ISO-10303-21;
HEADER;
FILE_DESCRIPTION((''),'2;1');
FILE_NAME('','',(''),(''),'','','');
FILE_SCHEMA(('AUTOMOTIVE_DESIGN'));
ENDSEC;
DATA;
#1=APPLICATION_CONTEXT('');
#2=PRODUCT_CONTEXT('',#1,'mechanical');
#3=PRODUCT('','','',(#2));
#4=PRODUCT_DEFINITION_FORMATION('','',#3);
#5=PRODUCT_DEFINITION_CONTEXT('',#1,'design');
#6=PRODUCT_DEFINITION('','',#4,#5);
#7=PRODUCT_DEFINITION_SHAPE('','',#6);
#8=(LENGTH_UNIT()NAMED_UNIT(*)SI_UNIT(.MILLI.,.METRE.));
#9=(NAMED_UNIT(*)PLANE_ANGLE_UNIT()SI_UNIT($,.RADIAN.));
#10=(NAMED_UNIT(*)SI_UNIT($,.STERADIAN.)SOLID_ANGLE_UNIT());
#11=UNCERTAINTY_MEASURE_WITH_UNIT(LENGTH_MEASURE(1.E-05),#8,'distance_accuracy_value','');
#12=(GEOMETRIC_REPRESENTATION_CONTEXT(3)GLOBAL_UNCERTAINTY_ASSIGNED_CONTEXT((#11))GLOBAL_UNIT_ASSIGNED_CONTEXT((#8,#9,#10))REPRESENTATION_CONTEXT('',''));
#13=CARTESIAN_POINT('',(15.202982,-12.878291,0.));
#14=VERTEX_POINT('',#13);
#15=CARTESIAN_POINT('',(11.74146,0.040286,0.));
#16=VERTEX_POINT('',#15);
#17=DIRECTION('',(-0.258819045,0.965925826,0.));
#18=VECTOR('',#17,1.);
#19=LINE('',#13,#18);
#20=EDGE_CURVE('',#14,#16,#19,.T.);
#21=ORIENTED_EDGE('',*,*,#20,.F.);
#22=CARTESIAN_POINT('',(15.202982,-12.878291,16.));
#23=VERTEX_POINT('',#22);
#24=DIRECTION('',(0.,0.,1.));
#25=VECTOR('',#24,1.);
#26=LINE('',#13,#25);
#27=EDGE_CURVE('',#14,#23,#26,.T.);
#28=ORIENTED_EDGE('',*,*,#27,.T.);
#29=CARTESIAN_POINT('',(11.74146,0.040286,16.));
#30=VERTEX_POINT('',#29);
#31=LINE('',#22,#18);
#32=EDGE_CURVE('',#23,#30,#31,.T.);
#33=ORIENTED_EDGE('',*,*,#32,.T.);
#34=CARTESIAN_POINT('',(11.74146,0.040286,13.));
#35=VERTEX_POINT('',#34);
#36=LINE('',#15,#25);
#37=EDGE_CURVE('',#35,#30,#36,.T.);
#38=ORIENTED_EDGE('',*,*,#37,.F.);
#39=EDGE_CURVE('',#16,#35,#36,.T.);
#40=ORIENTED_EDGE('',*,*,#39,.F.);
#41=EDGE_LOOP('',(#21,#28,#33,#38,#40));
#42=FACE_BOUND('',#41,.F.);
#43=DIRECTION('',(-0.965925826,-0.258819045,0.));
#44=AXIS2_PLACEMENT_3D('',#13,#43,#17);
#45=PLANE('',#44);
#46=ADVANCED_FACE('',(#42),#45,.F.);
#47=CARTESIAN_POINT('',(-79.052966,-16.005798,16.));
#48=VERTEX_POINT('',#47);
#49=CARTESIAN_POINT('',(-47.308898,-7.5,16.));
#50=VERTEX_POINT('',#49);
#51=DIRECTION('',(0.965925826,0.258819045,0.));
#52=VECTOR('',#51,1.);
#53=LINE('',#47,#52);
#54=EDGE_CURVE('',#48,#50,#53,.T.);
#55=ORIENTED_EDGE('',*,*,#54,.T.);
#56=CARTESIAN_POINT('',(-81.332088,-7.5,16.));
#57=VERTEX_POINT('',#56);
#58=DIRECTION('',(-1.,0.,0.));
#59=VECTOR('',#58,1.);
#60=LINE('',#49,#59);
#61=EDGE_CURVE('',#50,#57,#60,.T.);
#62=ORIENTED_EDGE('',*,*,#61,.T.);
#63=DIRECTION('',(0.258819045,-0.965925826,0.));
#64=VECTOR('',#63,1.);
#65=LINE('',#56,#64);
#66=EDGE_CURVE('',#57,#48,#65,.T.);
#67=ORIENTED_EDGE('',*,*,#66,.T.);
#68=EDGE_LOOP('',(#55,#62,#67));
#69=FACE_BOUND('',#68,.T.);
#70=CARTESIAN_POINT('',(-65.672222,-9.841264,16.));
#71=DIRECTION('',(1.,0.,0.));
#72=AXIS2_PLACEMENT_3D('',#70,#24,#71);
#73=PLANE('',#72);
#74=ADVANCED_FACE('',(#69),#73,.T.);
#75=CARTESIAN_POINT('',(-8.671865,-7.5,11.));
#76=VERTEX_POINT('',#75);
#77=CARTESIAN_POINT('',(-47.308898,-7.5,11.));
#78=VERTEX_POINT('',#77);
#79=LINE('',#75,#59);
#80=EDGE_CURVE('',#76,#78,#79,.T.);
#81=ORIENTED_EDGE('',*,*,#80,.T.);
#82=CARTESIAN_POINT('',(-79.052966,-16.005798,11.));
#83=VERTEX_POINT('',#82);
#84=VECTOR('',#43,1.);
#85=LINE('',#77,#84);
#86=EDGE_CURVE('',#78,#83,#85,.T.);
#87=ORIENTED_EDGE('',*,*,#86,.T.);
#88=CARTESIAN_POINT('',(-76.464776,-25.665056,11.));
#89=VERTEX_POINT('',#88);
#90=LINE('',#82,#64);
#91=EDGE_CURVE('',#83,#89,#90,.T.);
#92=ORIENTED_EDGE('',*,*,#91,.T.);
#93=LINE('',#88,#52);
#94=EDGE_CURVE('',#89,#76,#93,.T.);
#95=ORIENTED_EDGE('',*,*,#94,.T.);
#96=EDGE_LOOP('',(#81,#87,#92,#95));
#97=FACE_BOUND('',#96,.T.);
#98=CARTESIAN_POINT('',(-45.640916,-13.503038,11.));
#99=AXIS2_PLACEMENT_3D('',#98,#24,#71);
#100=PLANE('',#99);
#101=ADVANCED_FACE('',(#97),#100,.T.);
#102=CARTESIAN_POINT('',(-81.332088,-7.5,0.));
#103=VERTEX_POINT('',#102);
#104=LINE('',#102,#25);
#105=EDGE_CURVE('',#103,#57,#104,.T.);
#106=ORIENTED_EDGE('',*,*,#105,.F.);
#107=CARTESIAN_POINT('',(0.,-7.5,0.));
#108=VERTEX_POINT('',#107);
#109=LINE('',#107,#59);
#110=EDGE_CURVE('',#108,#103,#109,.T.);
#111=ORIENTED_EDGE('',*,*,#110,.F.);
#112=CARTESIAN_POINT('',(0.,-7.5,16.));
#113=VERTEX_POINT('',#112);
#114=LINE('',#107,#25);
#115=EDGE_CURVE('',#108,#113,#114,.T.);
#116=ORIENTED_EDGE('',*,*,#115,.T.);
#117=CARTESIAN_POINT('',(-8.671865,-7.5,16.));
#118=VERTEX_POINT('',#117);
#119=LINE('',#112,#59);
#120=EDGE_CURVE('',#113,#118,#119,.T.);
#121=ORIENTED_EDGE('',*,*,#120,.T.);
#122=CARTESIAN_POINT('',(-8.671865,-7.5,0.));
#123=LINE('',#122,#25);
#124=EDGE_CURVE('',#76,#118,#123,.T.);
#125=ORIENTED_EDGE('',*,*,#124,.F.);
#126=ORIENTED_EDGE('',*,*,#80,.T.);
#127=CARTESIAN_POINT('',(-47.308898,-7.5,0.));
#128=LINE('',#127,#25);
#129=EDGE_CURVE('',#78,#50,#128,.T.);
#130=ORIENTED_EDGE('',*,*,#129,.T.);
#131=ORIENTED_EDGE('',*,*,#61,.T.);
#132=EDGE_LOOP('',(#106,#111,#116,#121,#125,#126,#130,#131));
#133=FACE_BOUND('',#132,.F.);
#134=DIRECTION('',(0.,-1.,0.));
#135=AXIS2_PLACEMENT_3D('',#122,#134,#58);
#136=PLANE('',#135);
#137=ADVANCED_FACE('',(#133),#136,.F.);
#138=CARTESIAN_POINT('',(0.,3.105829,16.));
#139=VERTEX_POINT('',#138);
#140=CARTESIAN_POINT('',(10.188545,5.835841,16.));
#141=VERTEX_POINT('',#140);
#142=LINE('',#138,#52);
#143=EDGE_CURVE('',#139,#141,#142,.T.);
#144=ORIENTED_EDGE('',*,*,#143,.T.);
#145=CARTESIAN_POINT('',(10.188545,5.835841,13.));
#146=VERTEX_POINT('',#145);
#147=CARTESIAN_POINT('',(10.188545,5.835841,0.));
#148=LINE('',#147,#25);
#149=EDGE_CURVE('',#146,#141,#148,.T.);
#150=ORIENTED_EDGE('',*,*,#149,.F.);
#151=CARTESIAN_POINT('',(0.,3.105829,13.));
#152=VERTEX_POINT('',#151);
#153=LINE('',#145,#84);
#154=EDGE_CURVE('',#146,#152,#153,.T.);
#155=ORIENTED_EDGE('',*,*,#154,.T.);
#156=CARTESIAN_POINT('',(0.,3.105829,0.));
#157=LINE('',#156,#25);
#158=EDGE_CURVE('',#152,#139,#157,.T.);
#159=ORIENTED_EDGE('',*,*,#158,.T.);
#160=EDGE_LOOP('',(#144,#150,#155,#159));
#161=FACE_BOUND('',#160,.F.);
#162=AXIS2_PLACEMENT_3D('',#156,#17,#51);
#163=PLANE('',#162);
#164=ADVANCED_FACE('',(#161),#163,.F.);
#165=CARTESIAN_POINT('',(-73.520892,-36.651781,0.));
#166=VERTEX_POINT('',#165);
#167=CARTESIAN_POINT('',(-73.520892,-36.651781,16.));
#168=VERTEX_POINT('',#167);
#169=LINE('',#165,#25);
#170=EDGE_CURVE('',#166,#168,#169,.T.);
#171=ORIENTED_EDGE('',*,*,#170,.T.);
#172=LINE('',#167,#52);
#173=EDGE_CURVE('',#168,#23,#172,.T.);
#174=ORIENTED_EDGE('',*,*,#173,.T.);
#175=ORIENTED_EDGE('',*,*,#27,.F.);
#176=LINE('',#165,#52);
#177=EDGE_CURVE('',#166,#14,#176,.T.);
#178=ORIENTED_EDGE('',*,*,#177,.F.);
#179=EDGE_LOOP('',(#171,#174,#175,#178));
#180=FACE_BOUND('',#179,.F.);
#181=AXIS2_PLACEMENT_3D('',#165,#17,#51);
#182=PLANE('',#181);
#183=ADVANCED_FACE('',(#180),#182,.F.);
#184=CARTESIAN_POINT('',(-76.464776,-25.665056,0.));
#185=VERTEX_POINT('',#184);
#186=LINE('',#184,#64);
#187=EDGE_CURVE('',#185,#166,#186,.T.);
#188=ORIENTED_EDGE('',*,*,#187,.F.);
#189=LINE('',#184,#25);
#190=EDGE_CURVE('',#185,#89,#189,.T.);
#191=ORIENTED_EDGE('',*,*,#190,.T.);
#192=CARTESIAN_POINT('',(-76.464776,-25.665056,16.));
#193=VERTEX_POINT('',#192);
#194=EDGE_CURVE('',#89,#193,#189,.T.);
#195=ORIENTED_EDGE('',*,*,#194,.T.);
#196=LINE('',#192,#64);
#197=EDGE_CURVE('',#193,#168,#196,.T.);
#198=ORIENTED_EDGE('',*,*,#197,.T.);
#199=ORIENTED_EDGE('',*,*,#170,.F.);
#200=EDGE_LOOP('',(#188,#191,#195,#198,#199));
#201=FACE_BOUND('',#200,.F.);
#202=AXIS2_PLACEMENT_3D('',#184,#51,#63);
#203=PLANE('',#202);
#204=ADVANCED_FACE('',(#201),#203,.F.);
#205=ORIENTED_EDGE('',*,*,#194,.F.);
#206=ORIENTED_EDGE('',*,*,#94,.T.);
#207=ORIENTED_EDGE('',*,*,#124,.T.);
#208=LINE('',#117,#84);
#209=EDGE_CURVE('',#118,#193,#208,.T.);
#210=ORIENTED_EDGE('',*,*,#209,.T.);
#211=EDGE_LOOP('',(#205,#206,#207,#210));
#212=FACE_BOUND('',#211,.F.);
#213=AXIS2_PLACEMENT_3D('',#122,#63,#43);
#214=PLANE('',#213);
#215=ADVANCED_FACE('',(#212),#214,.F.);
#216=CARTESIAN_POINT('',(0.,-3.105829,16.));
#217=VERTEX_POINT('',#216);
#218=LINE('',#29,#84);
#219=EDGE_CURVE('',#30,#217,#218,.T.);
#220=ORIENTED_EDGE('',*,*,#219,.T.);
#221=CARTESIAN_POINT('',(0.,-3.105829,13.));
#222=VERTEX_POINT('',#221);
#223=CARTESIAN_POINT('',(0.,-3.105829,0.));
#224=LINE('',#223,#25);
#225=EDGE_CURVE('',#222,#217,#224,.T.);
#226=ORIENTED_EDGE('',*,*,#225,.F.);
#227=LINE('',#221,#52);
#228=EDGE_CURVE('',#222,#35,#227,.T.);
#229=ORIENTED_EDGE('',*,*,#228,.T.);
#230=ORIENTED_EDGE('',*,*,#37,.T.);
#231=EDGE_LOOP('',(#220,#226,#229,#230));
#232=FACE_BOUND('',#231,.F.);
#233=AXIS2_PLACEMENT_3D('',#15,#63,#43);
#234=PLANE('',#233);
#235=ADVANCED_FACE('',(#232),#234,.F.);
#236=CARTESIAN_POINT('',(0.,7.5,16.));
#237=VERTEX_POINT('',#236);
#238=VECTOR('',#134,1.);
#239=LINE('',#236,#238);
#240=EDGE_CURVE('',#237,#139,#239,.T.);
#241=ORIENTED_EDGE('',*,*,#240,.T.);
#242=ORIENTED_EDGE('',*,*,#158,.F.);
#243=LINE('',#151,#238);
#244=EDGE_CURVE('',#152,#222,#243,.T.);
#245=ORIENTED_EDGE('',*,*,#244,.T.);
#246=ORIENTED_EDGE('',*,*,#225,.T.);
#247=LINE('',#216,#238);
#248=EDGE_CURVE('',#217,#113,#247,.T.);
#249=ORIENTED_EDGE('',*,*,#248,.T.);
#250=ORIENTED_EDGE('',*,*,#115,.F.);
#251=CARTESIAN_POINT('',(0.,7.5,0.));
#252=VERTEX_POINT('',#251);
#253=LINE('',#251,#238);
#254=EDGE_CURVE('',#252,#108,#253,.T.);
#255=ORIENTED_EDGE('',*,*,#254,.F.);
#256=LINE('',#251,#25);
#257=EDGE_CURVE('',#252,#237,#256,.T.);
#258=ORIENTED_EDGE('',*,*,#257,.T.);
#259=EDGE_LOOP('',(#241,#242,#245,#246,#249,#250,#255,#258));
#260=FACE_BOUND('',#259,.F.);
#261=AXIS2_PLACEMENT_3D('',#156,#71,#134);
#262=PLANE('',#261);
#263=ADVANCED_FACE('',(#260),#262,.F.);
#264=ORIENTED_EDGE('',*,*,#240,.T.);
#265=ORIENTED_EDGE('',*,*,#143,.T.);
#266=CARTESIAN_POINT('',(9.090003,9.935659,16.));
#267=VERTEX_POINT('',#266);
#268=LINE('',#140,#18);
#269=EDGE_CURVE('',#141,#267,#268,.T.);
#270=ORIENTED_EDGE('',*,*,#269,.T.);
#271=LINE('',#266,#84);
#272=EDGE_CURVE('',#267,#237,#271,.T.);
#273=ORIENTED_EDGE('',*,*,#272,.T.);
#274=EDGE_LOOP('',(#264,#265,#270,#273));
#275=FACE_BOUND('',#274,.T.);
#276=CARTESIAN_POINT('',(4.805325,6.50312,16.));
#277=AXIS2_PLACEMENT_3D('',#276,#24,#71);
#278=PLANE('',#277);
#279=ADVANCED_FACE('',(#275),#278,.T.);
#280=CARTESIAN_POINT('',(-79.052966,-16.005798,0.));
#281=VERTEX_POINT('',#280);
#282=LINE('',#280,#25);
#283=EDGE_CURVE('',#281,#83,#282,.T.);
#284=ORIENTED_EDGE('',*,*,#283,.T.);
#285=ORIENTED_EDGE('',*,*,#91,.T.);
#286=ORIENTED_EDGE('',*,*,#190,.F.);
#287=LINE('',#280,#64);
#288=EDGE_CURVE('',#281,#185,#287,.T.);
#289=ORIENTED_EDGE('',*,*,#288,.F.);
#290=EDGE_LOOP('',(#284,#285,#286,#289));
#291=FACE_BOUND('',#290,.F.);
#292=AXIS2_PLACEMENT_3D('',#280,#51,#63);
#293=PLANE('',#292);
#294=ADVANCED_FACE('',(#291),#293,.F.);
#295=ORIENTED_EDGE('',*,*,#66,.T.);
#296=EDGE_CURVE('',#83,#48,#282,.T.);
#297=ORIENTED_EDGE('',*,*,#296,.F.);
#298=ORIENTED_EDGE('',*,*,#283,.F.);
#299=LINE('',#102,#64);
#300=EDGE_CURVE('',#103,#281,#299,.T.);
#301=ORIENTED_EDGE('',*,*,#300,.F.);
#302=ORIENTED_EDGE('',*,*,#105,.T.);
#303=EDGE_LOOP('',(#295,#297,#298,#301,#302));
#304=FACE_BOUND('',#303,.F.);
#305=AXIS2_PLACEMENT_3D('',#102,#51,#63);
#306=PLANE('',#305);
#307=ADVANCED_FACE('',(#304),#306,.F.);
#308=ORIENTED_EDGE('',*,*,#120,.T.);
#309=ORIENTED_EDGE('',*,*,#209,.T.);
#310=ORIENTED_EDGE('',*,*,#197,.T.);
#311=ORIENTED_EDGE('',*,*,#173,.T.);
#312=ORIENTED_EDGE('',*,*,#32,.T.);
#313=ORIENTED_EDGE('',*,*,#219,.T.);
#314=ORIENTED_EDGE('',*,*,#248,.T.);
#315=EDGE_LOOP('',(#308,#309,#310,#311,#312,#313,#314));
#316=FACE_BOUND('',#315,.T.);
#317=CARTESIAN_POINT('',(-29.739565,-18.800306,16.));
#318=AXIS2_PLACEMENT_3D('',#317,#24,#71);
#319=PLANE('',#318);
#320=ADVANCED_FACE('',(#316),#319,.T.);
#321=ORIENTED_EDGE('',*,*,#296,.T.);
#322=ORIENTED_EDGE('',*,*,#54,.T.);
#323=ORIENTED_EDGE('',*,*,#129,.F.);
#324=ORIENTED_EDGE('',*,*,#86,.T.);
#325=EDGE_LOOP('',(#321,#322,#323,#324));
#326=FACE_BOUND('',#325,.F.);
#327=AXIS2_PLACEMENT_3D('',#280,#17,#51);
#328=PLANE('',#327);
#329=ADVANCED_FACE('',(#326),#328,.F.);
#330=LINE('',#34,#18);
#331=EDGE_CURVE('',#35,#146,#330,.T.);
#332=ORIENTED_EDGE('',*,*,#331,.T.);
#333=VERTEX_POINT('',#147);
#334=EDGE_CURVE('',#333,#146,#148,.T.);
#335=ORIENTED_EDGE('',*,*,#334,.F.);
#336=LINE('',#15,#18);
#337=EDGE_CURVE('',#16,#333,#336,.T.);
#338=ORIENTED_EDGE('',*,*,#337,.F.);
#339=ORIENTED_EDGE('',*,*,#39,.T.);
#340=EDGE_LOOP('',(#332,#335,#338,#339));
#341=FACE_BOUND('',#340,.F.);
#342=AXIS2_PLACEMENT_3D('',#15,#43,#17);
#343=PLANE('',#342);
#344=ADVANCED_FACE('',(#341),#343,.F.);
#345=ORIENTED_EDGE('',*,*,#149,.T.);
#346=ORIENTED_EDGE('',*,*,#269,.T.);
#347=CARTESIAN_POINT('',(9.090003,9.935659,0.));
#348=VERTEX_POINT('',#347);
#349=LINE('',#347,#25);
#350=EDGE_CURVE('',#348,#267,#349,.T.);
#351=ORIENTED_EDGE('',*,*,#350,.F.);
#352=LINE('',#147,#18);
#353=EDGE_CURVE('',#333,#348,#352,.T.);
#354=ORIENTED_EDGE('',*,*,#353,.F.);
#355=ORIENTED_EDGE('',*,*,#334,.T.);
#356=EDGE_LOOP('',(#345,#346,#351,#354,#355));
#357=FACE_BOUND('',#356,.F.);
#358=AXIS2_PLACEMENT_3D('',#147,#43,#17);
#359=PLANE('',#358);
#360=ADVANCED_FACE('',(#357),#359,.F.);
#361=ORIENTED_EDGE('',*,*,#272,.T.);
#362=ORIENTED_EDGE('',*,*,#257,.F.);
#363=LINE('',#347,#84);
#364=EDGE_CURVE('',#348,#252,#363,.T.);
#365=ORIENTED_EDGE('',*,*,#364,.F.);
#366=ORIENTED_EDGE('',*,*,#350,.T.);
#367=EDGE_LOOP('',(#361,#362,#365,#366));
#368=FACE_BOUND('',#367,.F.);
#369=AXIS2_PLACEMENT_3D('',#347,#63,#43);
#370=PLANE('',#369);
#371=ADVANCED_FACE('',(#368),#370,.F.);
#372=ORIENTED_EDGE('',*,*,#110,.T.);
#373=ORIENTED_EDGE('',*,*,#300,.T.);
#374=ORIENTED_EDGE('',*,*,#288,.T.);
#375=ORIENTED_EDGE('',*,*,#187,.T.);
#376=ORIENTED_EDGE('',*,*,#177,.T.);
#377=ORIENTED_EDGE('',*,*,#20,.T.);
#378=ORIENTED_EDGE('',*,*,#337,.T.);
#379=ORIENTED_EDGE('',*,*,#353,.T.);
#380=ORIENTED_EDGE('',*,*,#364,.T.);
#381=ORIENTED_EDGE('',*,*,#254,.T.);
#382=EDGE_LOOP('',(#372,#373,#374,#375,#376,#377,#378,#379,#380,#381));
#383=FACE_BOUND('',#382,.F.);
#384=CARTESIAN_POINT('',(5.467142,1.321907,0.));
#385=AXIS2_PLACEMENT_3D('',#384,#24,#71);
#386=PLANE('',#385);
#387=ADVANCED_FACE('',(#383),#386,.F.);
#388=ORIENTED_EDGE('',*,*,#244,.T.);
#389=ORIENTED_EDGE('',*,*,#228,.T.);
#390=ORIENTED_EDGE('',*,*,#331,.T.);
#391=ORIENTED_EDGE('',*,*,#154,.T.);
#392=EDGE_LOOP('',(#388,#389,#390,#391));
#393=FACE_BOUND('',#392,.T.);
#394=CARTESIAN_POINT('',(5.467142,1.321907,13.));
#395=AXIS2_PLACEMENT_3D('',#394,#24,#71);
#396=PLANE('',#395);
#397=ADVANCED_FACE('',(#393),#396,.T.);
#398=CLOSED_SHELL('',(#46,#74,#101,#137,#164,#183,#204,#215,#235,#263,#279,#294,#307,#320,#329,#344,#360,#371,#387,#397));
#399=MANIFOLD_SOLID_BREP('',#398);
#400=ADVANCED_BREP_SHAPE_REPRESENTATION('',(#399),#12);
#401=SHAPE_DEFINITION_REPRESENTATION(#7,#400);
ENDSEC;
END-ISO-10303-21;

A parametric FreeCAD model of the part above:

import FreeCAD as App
import Part
import Sketcher
Q = App.Units.Quantity


def add_polygon(sketch, points):
    """Adds a closed chain of lines whose ends are joined by coincident constraints."""
    first, n = sketch.GeometryCount, len(points)
    for a, b in zip(points, points[1:] + points[:1]):
        sketch.addGeometry(Part.LineSegment(App.Vector(*a, 0), App.Vector(*b, 0)), False)
    for i in range(n):
        sketch.addConstraint(Sketcher.Constraint("Coincident", first + i, 2, first + (i + 1) % n, 1))

doc = App.newDocument("Part")
body = doc.addObject("PartDesign::Body", "Body")

# Sketch on XY plane
sketch1 = doc.addObject("Sketcher::SketchObject", "Sketch")
body.addObject(sketch1)
sketch1.AttachmentSupport = (doc.XY_Plane, [""])
sketch1.MapMode = "FlatFace"
add_polygon(sketch1, [(11.7, 0), (0, -3.1), (0, -7.5), (-8.7, -7.5), (-76.5, -25.7), (-73.5, -36.7), (15.2, -12.9)])  # lines 0-6
sketch1.addConstraint([
    Sketcher.Constraint("Vertical", 1),
    Sketcher.Constraint("Horizontal", 2),
    Sketcher.Constraint("PointOnObject", 0, 2, -2),
    Sketcher.Constraint("Parallel", 0, 3),
    Sketcher.Constraint("Perpendicular", 3, 4),
    Sketcher.Constraint("Perpendicular", 4, 5),
    Sketcher.Constraint("Perpendicular", 5, 6),
    Sketcher.Constraint("Angle", 0, Q("-165 deg")),
    Sketcher.Constraint("DistanceY", 1, 2, -1, 1, Q("7.5 mm")),
    Sketcher.Constraint("DistanceY", 1, 2, 1, 1, Q("4.394171 mm")),
    Sketcher.Constraint("DistanceX", 2, 2, 2, 1, Q("8.671865 mm")),
    Sketcher.Constraint("DistanceX", 4, 2, -1, 1, Q("73.520892 mm")),
    Sketcher.Constraint("DistanceY", 4, 2, -1, 1, Q("36.651781 mm")),
    Sketcher.Constraint("DistanceX", -1, 1, 5, 2, Q("15.202982 mm")),
])
pad1 = doc.addObject("PartDesign::Pad", "Pad")
body.addObject(pad1)
pad1.Profile = sketch1
pad1.Length = 16
body2 = doc.addObject("PartDesign::Body", "Body001")

# Sketch on XY plane
sketch2 = doc.addObject("Sketcher::SketchObject", "Sketch001")
body2.addObject(sketch2)
sketch2.AttachmentSupport = (doc.getObject("XY_Plane001"), [""])
sketch2.MapMode = "FlatFace"
add_polygon(sketch2, [(-79, -16), (-47, -8), (-81, -8)])  # lines 0-2
sketch2.addConstraint([
    Sketcher.Constraint("Horizontal", 1),
    Sketcher.Constraint("Perpendicular", 0, 2),
    Sketcher.Constraint("Angle", 0, Q("15 deg")),
    Sketcher.Constraint("DistanceY", 0, 2, -1, 1, Q("7.5 mm")),
    Sketcher.Constraint("DistanceX", 1, 2, 1, 1, Q("34.02319 mm")),
    Sketcher.Constraint("DistanceX", 1, 2, -1, 1, Q("81.332088 mm")),
])
pad2 = doc.addObject("PartDesign::Pad", "Pad001")
body2.addObject(pad2)
pad2.Profile = sketch2
pad2.Length = 16
body3 = doc.addObject("PartDesign::Body", "Body002")

# Sketch on XY plane
sketch3 = doc.addObject("Sketcher::SketchObject", "Sketch002")
body3.addObject(sketch3)
sketch3.AttachmentSupport = (doc.getObject("XY_Plane002"), [""])
sketch3.MapMode = "FlatFace"
add_polygon(sketch3, [(0, 7.5), (0, 3.1), (10.2, 5.8), (9.1, 9.9)])  # lines 0-3
sketch3.addConstraint([
    Sketcher.Constraint("Vertical", 0),
    Sketcher.Constraint("PointOnObject", 0, 2, -2),
    Sketcher.Constraint("Perpendicular", 1, 2),
    Sketcher.Constraint("Perpendicular", 2, 3),
    Sketcher.Constraint("Angle", 1, Q("15 deg")),
    Sketcher.Constraint("DistanceY", -1, 1, 3, 2, Q("7.5 mm")),
    Sketcher.Constraint("DistanceY", 0, 2, 0, 1, Q("4.394171 mm")),
    Sketcher.Constraint("Distance", 1, Q("10.547958 mm")),
])
pad3 = doc.addObject("PartDesign::Pad", "Pad002")
body3.addObject(pad3)
pad3.Profile = sketch3
pad3.Length = 16
body.AllowCompound = True
doc.recompute()

boolean = doc.addObject("PartDesign::Boolean", "Boolean")
body.addObject(boolean)
boolean.Type = "Fuse"
boolean.addObjects([body2])

# Sketch on XY plane
sketch4 = doc.addObject("Sketcher::SketchObject", "Sketch003")
body.addObject(sketch4)
sketch4.AttachmentSupport = (doc.XY_Plane, [""])
sketch4.MapMode = "FlatFace"
add_polygon(sketch4, [(-76, -26), (-9, -8), (-47, -8), (-79, -16)])  # lines 0-3
sketch4.addConstraint([
    Sketcher.Constraint("Horizontal", 1),
    Sketcher.Constraint("Parallel", 0, 2),
    Sketcher.Constraint("Perpendicular", 2, 3),
    Sketcher.Constraint("Angle", 0, Q("15 deg")),
    Sketcher.Constraint("Distance", 3, Q("10 mm")),
    Sketcher.Constraint("DistanceY", 0, 2, -1, 1, Q("7.5 mm")),
    Sketcher.Constraint("DistanceX", 2, 2, 0, 2, Q("70.381102 mm")),
    Sketcher.Constraint("DistanceX", 0, 2, -1, 1, Q("8.671865 mm")),
])
pad4 = doc.addObject("PartDesign::Pad", "Pad003")
body.addObject(pad4)
pad4.Profile = sketch4
pad4.Length = 11
doc.recompute()

boolean2 = doc.addObject("PartDesign::Boolean", "Boolean001")
body.addObject(boolean2)
boolean2.Type = "Fuse"
boolean2.addObjects([body3])

# Sketch on XY plane
sketch5 = doc.addObject("Sketcher::SketchObject", "Sketch004")
body.addObject(sketch5)
sketch5.AttachmentSupport = (doc.XY_Plane, [""])
sketch5.MapMode = "FlatFace"
add_polygon(sketch5, [(0, 3), (0, -3), (12, 0), (10, 6)])  # lines 0-3
sketch5.addConstraint([
    Sketcher.Constraint("Vertical", 0),
    Sketcher.Constraint("Symmetric", 0, 2, 3, 2, -1, 1),
    Sketcher.Constraint("Perpendicular", 1, 2),
    Sketcher.Constraint("Perpendicular", 2, 3),
    Sketcher.Constraint("Angle", 1, Q("15 deg")),
    Sketcher.Constraint("Distance", 2, Q("6 mm")),
    Sketcher.Constraint("Distance", 3, Q("10.547958 mm")),
])
pad5 = doc.addObject("PartDesign::Pad", "Pad004")
body.addObject(pad5)
pad5.Profile = sketch5
pad5.Length = 13

doc.recompute()
